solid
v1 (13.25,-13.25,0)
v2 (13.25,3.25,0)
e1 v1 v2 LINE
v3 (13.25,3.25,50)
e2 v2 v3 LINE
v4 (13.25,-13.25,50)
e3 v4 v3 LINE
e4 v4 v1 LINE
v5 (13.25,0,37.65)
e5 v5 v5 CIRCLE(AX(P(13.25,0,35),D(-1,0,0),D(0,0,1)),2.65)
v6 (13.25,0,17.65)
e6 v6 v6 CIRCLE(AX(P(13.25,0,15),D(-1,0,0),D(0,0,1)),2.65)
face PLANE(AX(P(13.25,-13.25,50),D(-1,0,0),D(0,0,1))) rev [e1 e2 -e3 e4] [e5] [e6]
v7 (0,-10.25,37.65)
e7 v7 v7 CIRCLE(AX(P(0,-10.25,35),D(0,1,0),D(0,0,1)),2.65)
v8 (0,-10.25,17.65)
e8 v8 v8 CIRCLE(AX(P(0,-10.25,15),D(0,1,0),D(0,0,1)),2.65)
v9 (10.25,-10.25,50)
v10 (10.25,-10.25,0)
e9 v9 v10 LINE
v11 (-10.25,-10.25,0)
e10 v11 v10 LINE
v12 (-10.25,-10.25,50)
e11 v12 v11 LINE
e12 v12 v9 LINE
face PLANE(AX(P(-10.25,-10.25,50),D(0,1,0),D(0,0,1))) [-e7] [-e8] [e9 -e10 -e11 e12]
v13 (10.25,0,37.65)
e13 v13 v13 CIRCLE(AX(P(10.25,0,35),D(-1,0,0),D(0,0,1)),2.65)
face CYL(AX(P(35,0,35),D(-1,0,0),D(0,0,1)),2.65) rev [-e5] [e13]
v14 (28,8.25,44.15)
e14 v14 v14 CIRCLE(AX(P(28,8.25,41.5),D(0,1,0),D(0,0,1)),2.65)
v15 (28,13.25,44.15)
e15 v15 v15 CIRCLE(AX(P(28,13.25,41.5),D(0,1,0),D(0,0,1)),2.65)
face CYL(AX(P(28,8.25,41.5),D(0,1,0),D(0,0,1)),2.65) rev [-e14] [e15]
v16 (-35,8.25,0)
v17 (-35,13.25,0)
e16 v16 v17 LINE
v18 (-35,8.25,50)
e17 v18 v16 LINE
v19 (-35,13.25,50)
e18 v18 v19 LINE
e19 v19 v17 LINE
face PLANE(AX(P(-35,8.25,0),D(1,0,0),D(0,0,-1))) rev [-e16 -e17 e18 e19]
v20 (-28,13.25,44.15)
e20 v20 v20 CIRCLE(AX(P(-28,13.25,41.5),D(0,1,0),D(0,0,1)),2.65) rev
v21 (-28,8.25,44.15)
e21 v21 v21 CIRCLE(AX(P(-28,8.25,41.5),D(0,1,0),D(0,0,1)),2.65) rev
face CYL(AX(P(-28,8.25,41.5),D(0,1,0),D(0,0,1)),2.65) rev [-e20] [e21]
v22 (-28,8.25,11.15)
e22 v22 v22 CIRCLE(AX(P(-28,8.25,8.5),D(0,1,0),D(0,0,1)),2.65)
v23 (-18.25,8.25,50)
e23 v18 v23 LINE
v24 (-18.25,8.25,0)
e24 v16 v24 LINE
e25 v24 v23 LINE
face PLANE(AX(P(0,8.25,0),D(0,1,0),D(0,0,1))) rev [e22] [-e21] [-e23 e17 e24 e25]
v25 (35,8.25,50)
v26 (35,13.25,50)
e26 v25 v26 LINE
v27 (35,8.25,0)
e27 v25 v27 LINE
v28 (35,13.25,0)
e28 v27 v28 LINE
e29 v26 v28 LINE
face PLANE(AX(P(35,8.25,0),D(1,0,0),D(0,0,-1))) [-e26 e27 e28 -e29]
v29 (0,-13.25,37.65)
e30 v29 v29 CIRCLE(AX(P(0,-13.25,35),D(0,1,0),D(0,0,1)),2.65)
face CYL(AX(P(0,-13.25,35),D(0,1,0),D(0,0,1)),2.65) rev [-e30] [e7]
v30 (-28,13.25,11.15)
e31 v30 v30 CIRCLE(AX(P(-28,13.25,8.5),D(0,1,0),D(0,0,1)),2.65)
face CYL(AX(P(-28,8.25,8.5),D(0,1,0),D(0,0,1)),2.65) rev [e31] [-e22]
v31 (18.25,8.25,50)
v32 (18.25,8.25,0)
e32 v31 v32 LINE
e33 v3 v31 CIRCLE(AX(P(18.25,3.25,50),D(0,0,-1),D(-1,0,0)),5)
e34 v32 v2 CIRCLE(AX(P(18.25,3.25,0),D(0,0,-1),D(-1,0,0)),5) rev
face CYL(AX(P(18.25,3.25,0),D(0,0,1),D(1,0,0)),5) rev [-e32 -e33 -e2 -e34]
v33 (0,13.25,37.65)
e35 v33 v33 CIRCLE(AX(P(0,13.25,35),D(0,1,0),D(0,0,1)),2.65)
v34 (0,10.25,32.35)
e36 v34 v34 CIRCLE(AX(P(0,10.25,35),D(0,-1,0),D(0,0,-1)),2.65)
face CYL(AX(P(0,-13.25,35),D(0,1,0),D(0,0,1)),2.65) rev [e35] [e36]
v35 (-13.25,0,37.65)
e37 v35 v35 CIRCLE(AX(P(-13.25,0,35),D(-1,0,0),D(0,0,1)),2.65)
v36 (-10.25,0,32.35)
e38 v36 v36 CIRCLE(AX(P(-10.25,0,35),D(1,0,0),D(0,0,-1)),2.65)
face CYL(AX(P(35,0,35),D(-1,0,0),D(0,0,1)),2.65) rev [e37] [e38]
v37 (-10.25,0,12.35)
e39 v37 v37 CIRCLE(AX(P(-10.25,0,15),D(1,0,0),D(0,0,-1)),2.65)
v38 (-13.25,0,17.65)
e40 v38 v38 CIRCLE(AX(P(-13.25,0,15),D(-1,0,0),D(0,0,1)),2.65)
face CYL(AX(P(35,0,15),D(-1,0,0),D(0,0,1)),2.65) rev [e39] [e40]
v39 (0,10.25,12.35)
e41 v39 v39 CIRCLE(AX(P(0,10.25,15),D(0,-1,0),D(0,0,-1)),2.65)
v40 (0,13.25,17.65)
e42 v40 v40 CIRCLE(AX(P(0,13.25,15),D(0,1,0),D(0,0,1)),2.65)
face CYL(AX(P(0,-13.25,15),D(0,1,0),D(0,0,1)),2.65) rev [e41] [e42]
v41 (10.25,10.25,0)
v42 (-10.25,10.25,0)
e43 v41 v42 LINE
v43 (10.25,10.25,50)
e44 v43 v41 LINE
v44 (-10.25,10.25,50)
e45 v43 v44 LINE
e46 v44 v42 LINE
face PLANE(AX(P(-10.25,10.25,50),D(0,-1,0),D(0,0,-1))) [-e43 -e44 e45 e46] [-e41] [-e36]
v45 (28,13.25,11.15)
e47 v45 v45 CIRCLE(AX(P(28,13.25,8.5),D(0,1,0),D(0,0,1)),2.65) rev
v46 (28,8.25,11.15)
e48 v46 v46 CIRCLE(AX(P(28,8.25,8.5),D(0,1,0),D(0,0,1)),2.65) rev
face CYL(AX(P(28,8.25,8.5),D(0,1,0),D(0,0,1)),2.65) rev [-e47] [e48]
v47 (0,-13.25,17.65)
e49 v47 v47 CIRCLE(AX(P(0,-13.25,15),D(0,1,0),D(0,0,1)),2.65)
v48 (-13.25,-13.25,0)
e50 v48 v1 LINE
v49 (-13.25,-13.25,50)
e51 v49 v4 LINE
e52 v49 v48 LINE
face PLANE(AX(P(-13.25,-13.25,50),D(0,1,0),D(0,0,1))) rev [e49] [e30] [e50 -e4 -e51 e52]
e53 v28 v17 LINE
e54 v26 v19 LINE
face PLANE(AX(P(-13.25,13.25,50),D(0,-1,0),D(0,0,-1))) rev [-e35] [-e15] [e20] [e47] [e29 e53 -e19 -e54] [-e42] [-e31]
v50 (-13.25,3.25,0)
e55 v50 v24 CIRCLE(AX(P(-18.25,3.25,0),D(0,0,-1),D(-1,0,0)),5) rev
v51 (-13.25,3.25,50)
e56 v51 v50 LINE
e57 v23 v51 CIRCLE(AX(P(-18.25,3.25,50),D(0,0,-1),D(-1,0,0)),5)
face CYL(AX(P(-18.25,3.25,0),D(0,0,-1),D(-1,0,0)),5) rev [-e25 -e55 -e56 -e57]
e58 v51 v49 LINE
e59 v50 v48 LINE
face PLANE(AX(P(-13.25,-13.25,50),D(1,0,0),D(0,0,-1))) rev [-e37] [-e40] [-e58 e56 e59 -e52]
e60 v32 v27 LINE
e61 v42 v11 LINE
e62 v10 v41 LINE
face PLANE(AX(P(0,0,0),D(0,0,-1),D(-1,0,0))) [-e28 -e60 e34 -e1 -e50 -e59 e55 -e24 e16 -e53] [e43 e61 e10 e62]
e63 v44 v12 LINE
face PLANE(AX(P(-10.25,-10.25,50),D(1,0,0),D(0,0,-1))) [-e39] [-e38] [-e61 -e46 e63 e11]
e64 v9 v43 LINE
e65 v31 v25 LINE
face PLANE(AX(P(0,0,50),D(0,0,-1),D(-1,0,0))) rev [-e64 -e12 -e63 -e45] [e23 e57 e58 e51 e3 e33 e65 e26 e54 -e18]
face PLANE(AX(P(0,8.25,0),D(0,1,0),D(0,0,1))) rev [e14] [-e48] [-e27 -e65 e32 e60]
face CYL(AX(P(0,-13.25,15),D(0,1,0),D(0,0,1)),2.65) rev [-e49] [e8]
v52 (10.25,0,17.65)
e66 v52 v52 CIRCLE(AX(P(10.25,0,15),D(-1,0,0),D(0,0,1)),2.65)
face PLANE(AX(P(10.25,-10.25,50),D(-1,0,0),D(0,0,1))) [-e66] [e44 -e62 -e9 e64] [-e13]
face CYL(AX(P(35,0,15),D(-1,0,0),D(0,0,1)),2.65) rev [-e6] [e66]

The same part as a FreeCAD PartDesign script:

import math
import FreeCAD as App
import Part
import Sketcher
Q = App.Units.Quantity


def edges_at(feature, points):
    """Names of the edges that pass closest to the given points."""
    edges = feature.Shape.Edges
    near = lambda p: min(range(len(edges)), key=lambda i: edges[i].distToShape(Part.Vertex(*p))[0])
    return sorted({f"Edge{near(p) + 1}" for p in points})

doc = App.newDocument("Part")
params = doc.addObject("Spreadsheet::Sheet", "Params")
for row, (alias, value) in enumerate([
    ("sketch1_width", "26.5 mm"),
    ("sketch1_width2", "20.5 mm"),
    ("pad1_length", "50 mm"),
    ("sketch2_diameter", "5.3 mm"),
    ("sketch2_height", "50 mm"),
    ("sketch2_width", "21.75 mm"),
    ("pad2_length", "5 mm"),
    ("sketch3_radius", "2.65 mm"),
    ("sketch4_diameter", "5.3 mm"),
    ("fillet_radius", "5 mm"),
], start=1):
    params.set(f"A{row}", alias)
    params.set(f"B{row}", "=" + value)
    params.setAlias(f"B{row}", alias)

body = doc.addObject("PartDesign::Body", "Body")

# Sketch on XY plane
sketch1 = doc.addObject("Sketcher::SketchObject", "Sketch")
body.addObject(sketch1)
sketch1.AttachmentSupport = (doc.XY_Plane, [""])
sketch1.MapMode = "FlatFace"
sketch1.addGeometry([
    Part.LineSegment(App.Vector(-13, 13, 0), App.Vector(-13, -13, 0)),  # 0
    Part.LineSegment(App.Vector(-13, -13, 0), App.Vector(13, -13, 0)),  # 1
    Part.LineSegment(App.Vector(13, -13, 0), App.Vector(13, 13, 0)),  # 2
    Part.LineSegment(App.Vector(13, 13, 0), App.Vector(-13, 13, 0)),  # 3
    Part.LineSegment(App.Vector(10, -10, 0), App.Vector(-10, -10, 0)),  # 4
    Part.LineSegment(App.Vector(-10, -10, 0), App.Vector(-10, 10, 0)),  # 5
    Part.LineSegment(App.Vector(-10, 10, 0), App.Vector(10, 10, 0)),  # 6
    Part.LineSegment(App.Vector(10, 10, 0), App.Vector(10, -10, 0)),  # 7
], False)
sketch1.addConstraint([
    Sketcher.Constraint("Coincident", 0, 2, 1, 1),
    Sketcher.Constraint("Coincident", 1, 2, 2, 1),
    Sketcher.Constraint("Coincident", 2, 2, 3, 1),
    Sketcher.Constraint("Coincident", 3, 2, 0, 1),
    Sketcher.Constraint("Coincident", 4, 2, 5, 1),
    Sketcher.Constraint("Coincident", 5, 2, 6, 1),
    Sketcher.Constraint("Coincident", 6, 2, 7, 1),
    Sketcher.Constraint("Coincident", 7, 2, 4, 1),
    Sketcher.Constraint("Vertical", 0),
    Sketcher.Constraint("Horizontal", 1),
    Sketcher.Constraint("Vertical", 2),
    Sketcher.Constraint("Horizontal", 3),
    Sketcher.Constraint("Horizontal", 4),
    Sketcher.Constraint("Vertical", 5),
    Sketcher.Constraint("Horizontal", 6),
    Sketcher.Constraint("Vertical", 7),
    Sketcher.Constraint("Symmetric", 0, 2, 2, 2, -1, 1),
    Sketcher.Constraint("Symmetric", 4, 2, 6, 2, -1, 1),
    Sketcher.Constraint("Equal", 3, 0),
    Sketcher.Constraint("Equal", 6, 5),
    Sketcher.Constraint("DistanceX", 1, 1, 1, 2, Q("26.5 mm")),
    Sketcher.Constraint("DistanceX", 4, 2, 4, 1, Q("20.5 mm")),
])
sketch1.setExpression("Constraints[20]", "Params.sketch1_width")
sketch1.setExpression("Constraints[21]", "Params.sketch1_width2")
pad1 = doc.addObject("PartDesign::Pad", "Pad")
body.addObject(pad1)
pad1.Profile = sketch1
pad1.setExpression("Length", "Params.pad1_length")

# Sketch on XZ plane
sketch2 = doc.addObject("Sketcher::SketchObject", "Sketch001")
body.addObject(sketch2)
sketch2.AttachmentSupport = (doc.XZ_Plane, [""])
sketch2.MapMode = "FlatFace"
sketch2.AttachmentOffset = App.Placement(App.Vector(0, 0, -13.25), App.Rotation())
sketch2.addGeometry([
    Part.LineSegment(App.Vector(-13.2, 50, 0), App.Vector(-13.2, 0, 0)),  # 0
    Part.LineSegment(App.Vector(-13.2, 0, 0), App.Vector(-35, 0, 0)),  # 1
    Part.LineSegment(App.Vector(-35, 0, 0), App.Vector(-35, 50, 0)),  # 2
    Part.LineSegment(App.Vector(-35, 50, 0), App.Vector(-13.2, 50, 0)),  # 3
    Part.Circle(App.Vector(-28, 41.5, 0), App.Vector(0, 0, 1), 2.6),  # 4
    Part.Circle(App.Vector(-28, 8.5, 0), App.Vector(0, 0, 1), 2.6),  # 5
    Part.LineSegment(App.Vector(13.2, 0, 0), App.Vector(13.2, 50, 0)),  # 6
    Part.LineSegment(App.Vector(13.2, 50, 0), App.Vector(35, 50, 0)),  # 7
    Part.LineSegment(App.Vector(35, 50, 0), App.Vector(35, 0, 0)),  # 8
    Part.LineSegment(App.Vector(35, 0, 0), App.Vector(13.2, 0, 0)),  # 9
    Part.Circle(App.Vector(28, 41.5, 0), App.Vector(0, 0, 1), 2.6),  # 10
    Part.Circle(App.Vector(28, 8.5, 0), App.Vector(0, 0, 1), 2.6),  # 11
], False)
sketch2.addConstraint([
    Sketcher.Constraint("Coincident", 0, 2, 1, 1),
    Sketcher.Constraint("Coincident", 1, 2, 2, 1),
    Sketcher.Constraint("Coincident", 2, 2, 3, 1),
    Sketcher.Constraint("Coincident", 3, 2, 0, 1),
    Sketcher.Constraint("Coincident", 6, 2, 7, 1),
    Sketcher.Constraint("Coincident", 7, 2, 8, 1),
    Sketcher.Constraint("Coincident", 8, 2, 9, 1),
    Sketcher.Constraint("Coincident", 9, 2, 6, 1),
    Sketcher.Constraint("Vertical", 0),
    Sketcher.Constraint("Horizontal", 1),
    Sketcher.Constraint("Vertical", 2),
    Sketcher.Constraint("Horizontal", 3),
    Sketcher.Constraint("Vertical", 6),
    Sketcher.Constraint("Horizontal", 7),
    Sketcher.Constraint("Vertical", 8),
    Sketcher.Constraint("Horizontal", 9),
    Sketcher.Constraint("Equal", 4, 5),
    Sketcher.Constraint("Equal", 5, 10),
    Sketcher.Constraint("Equal", 10, 11),
    Sketcher.Constraint("Symmetric", 1, 2, 8, 2, -1, 1),
    Sketcher.Constraint("Symmetric", 4, 3, 10, 3, -2),
    Sketcher.Constraint("Symmetric", 5, 3, 11, 3, -2),
    Sketcher.Constraint("Symmetric", 3, 2, 6, 2, -2),
    Sketcher.Constraint("PointOnObject", 0, 2, -1),
    Sketcher.Constraint("Vertical", 4, 3, 5, 3),
    Sketcher.Constraint("Diameter", 4, Q("5.3 mm")),
    Sketcher.Constraint("DistanceY", 0, 2, 0, 1, Q("50 mm")),
    Sketcher.Constraint("DistanceX", 4, 3, -1, 1, Q("28 mm")),
    Sketcher.Constraint("DistanceX", 1, 2, -1, 1, Q("35 mm")),
    Sketcher.Constraint("DistanceY", 5, 3, 4, 3, Q("33 mm")),
    Sketcher.Constraint("DistanceX", 1, 2, 1, 1, Q("21.75 mm")),
    Sketcher.Constraint("DistanceY", -1, 1, 4, 3, Q("41.5 mm")),
])
sketch2.setExpression("Constraints[25]", "Params.sketch2_diameter")
sketch2.setExpression("Constraints[26]", "Params.sketch2_height")
sketch2.setExpression("Constraints[30]", "Params.sketch2_width")
pad2 = doc.addObject("PartDesign::Pad", "Pad001")
body.addObject(pad2)
pad2.Profile = sketch2
pad2.setExpression("Length", "Params.pad2_length")

# Sketch on XZ plane
sketch3 = doc.addObject("Sketcher::SketchObject", "Sketch002")
body.addObject(sketch3)
sketch3.AttachmentSupport = (doc.XZ_Plane, [""])
sketch3.MapMode = "FlatFace"
sketch3.AttachmentOffset = App.Placement(App.Vector(0, 0, -13.25), App.Rotation())
sketch3.addGeometry([
    Part.ArcOfCircle(Part.Circle(App.Vector(0, 15, 0), App.Vector(0, 0, 1), 2.6), math.radians(-90), math.radians(0)),  # 0
    Part.ArcOfCircle(Part.Circle(App.Vector(0, 15, 0), App.Vector(0, 0, 1), 2.6), math.radians(90), math.radians(270)),  # 1
    Part.ArcOfCircle(Part.Circle(App.Vector(0, 15, 0), App.Vector(0, 0, 1), 2.6), math.radians(0), math.radians(90)),  # 2
    Part.ArcOfCircle(Part.Circle(App.Vector(0, 35, 0), App.Vector(0, 0, 1), 2.6), math.radians(-90), math.radians(0)),  # 3
    Part.ArcOfCircle(Part.Circle(App.Vector(0, 35, 0), App.Vector(0, 0, 1), 2.6), math.radians(90), math.radians(270)),  # 4
    Part.ArcOfCircle(Part.Circle(App.Vector(0, 35, 0), App.Vector(0, 0, 1), 2.6), math.radians(0), math.radians(90)),  # 5
], False)
sketch3.addConstraint([
    Sketcher.Constraint("Tangent", 0, 1, 1, 2),
    Sketcher.Constraint("Tangent", 1, 1, 2, 2),
    Sketcher.Constraint("Tangent", 2, 1, 0, 2),
    Sketcher.Constraint("Tangent", 3, 1, 4, 2),
    Sketcher.Constraint("Tangent", 4, 1, 5, 2),
    Sketcher.Constraint("Tangent", 5, 1, 3, 2),
    Sketcher.Constraint("Equal", 2, 3),
    Sketcher.Constraint("PointOnObject", 0, 3, -2),
    Sketcher.Constraint("PointOnObject", 3, 3, -2),
    Sketcher.Constraint("PointOnObject", 0, 1, -2),
    Sketcher.Constraint("PointOnObject", 1, 1, -2),
    Sketcher.Constraint("PointOnObject", 3, 1, -2),
    Sketcher.Constraint("PointOnObject", 4, 1, -2),
    Sketcher.Constraint("Horizontal", 1, 3, 2, 1),
    Sketcher.Constraint("Horizontal", 4, 3, 5, 1),
    Sketcher.Constraint("Radius", 0, Q("2.65 mm")),
    Sketcher.Constraint("DistanceY", -1, 1, 0, 3, Q("15 mm")),
    Sketcher.Constraint("DistanceY", -1, 1, 3, 3, Q("35 mm")),
])
sketch3.setExpression("Constraints[15]", "Params.sketch3_radius")
pocket1 = doc.addObject("PartDesign::Pocket", "Pocket")
body.addObject(pocket1)
pocket1.Profile = sketch3
pocket1.Type = "ThroughAll"
pocket1.Reversed = True

# Sketch on YZ plane
sketch4 = doc.addObject("Sketcher::SketchObject", "Sketch003")
body.addObject(sketch4)
sketch4.AttachmentSupport = (doc.YZ_Plane, [""])
sketch4.MapMode = "FlatFace"
sketch4.AttachmentOffset = App.Placement(App.Vector(0, 0, -13.25), App.Rotation())
sketch4.addGeometry([
    Part.Circle(App.Vector(0, 15, 0), App.Vector(0, 0, 1), 2.6),
    Part.Circle(App.Vector(0, 35, 0), App.Vector(0, 0, 1), 2.6),
], False)
sketch4.addConstraint([
    Sketcher.Constraint("Equal", 0, 1),
    Sketcher.Constraint("PointOnObject", 0, 3, -2),
    Sketcher.Constraint("PointOnObject", 1, 3, -2),
    Sketcher.Constraint("Diameter", 0, Q("5.3 mm")),
    Sketcher.Constraint("DistanceY", -1, 1, 0, 3, Q("15 mm")),
    Sketcher.Constraint("DistanceY", -1, 1, 1, 3, Q("35 mm")),
])
sketch4.setExpression("Constraints[3]", "Params.sketch4_diameter")
pocket2 = doc.addObject("PartDesign::Pocket", "Pocket001")
body.addObject(pocket2)
pocket2.Profile = sketch4
pocket2.Type = "ThroughAll"
pocket2.Reversed = True
doc.recompute()

fillet = doc.addObject("PartDesign::Fillet", "Fillet")
body.addObject(fillet)
fillet.Base = (pocket2, edges_at(pocket2, [(-13.25, 8.25, 25), (13.25, 8.25, 25)]))
fillet.setExpression("Radius", "Params.fillet_radius")

doc.recompute()
